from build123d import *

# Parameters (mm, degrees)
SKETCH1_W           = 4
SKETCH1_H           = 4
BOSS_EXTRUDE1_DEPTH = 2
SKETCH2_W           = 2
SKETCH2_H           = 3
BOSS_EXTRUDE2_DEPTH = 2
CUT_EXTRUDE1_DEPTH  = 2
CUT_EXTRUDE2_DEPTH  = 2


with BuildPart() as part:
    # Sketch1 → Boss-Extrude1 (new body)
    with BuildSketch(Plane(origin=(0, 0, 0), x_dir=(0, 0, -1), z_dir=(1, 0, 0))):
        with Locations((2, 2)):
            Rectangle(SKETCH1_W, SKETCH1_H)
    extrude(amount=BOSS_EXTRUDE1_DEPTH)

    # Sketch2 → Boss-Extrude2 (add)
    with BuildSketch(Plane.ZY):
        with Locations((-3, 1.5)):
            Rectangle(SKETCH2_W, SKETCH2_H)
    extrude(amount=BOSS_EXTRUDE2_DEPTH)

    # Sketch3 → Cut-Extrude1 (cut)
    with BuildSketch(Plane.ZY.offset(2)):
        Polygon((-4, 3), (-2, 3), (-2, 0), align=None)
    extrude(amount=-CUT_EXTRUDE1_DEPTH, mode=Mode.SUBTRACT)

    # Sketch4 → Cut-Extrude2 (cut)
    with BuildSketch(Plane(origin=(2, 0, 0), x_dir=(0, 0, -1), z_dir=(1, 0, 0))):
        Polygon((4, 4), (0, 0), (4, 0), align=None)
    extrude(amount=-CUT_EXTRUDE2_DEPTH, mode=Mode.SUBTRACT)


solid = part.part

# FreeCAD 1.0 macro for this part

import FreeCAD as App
import Part
import Sketcher

V = App.Vector


def add_polygon(sketch, points):
    """Adds a closed chain of lines whose ends are joined by coincident constraints."""
    first, n = sketch.GeometryCount, len(points)
    for a, b in zip(points, points[1:] + points[:1]):
        sketch.addGeometry(Part.LineSegment(App.Vector(*a, 0), App.Vector(*b, 0)), False)
    for i in range(n):
        sketch.addConstraint(Sketcher.Constraint("Coincident", first + i, 2, first + (i + 1) % n, 1))

doc = App.newDocument("Part")
body = doc.addObject("PartDesign::Body", "Body")
body.AllowCompound = True

# Sketch on YZ plane
sketch1 = doc.addObject("Sketcher::SketchObject", "Sketch")
body.addObject(sketch1)
sketch1.AttachmentSupport = (doc.YZ_Plane, [""])
sketch1.MapMode = "FlatFace"
add_polygon(sketch1, [(4, 0), (0, 0), (0, -4), (4, -4)])  # lines 0-3
sketch1.addConstraint(Sketcher.Constraint("Horizontal", 0))
sketch1.addConstraint(Sketcher.Constraint("Vertical", 1))
sketch1.addConstraint(Sketcher.Constraint("Horizontal", 2))
sketch1.addConstraint(Sketcher.Constraint("Vertical", 3))
sketch1.addConstraint(Sketcher.Constraint("Coincident", 0, 2, -1, 1))
sketch1.addConstraint(Sketcher.Constraint("Equal", 2, 1))
sketch1.addConstraint(Sketcher.Constraint("DistanceX", 0, 2, 0, 1, 4.0))
pad1 = doc.addObject("PartDesign::Pad", "Pad")
body.addObject(pad1)
pad1.Profile = sketch1
pad1.Length = 2

# Sketch on YZ plane
sketch2 = doc.addObject("Sketcher::SketchObject", "Sketch001")
body.addObject(sketch2)
sketch2.AttachmentSupport = (doc.YZ_Plane, [""])
sketch2.MapMode = "FlatFace"
add_polygon(sketch2, [(3, -4), (0, -4), (0, -2), (3, -2)])  # lines 0-3
sketch2.addConstraint(Sketcher.Constraint("Horizontal", 0))
sketch2.addConstraint(Sketcher.Constraint("Vertical", 1))
sketch2.addConstraint(Sketcher.Constraint("Horizontal", 2))
sketch2.addConstraint(Sketcher.Constraint("Vertical", 3))
sketch2.addConstraint(Sketcher.Constraint("PointOnObject", 0, 2, -2))
sketch2.addConstraint(Sketcher.Constraint("DistanceX", 0, 2, 0, 1, 3.0))
sketch2.addConstraint(Sketcher.Constraint("DistanceY", 1, 1, 1, 2, 2.0))
sketch2.addConstraint(Sketcher.Constraint("DistanceY", 0, 2, -1, 1, 4.0))
pad2 = doc.addObject("PartDesign::Pad", "Pad001")
body.addObject(pad2)
pad2.Profile = sketch2
pad2.Length = 2
pad2.Reversed = True

# Sketch on YZ plane
sketch3 = doc.addObject("Sketcher::SketchObject", "Sketch002")
body.addObject(sketch3)
sketch3.AttachmentSupport = (doc.YZ_Plane, [""])
sketch3.MapMode = "FlatFace"
sketch3.AttachmentOffset = App.Placement(V(0, 0, -2), App.Rotation())
add_polygon(sketch3, [(3, -2), (3, -4), (0, -2)])  # lines 0-2
sketch3.addConstraint(Sketcher.Constraint("Vertical", 0))
sketch3.addConstraint(Sketcher.Constraint("Horizontal", 2))
sketch3.addConstraint(Sketcher.Constraint("PointOnObject", 1, 2, -2))
sketch3.addConstraint(Sketcher.Constraint("DistanceX", 2, 1, 2, 2, 3.0))
sketch3.addConstraint(Sketcher.Constraint("DistanceY", 0, 2, 0, 1, 2.0))
sketch3.addConstraint(Sketcher.Constraint("DistanceY", 0, 2, -1, 1, 4.0))
pocket1 = doc.addObject("PartDesign::Pocket", "Pocket")
body.addObject(pocket1)
pocket1.Profile = sketch3
pocket1.Length = 2
pocket1.Reversed = True

# Sketch on YZ plane
sketch4 = doc.addObject("Sketcher::SketchObject", "Sketch003")
body.addObject(sketch4)
sketch4.AttachmentSupport = (doc.YZ_Plane, [""])
sketch4.MapMode = "FlatFace"
sketch4.AttachmentOffset = App.Placement(V(0, 0, 2), App.Rotation())
add_polygon(sketch4, [(4, -4), (0, 0), (0, -4)])  # lines 0-2
sketch4.addConstraint(Sketcher.Constraint("Vertical", 1))
sketch4.addConstraint(Sketcher.Constraint("Horizontal", 2))
sketch4.addConstraint(Sketcher.Constraint("Coincident", 0, 2, -1, 1))
sketch4.addConstraint(Sketcher.Constraint("Equal", 2, 1))
sketch4.addConstraint(Sketcher.Constraint("DistanceX", 2, 1, 2, 2, 4.0))
pocket2 = doc.addObject("PartDesign::Pocket", "Pocket001")
body.addObject(pocket2)
pocket2.Profile = sketch4
pocket2.Length = 2

doc.recompute()
